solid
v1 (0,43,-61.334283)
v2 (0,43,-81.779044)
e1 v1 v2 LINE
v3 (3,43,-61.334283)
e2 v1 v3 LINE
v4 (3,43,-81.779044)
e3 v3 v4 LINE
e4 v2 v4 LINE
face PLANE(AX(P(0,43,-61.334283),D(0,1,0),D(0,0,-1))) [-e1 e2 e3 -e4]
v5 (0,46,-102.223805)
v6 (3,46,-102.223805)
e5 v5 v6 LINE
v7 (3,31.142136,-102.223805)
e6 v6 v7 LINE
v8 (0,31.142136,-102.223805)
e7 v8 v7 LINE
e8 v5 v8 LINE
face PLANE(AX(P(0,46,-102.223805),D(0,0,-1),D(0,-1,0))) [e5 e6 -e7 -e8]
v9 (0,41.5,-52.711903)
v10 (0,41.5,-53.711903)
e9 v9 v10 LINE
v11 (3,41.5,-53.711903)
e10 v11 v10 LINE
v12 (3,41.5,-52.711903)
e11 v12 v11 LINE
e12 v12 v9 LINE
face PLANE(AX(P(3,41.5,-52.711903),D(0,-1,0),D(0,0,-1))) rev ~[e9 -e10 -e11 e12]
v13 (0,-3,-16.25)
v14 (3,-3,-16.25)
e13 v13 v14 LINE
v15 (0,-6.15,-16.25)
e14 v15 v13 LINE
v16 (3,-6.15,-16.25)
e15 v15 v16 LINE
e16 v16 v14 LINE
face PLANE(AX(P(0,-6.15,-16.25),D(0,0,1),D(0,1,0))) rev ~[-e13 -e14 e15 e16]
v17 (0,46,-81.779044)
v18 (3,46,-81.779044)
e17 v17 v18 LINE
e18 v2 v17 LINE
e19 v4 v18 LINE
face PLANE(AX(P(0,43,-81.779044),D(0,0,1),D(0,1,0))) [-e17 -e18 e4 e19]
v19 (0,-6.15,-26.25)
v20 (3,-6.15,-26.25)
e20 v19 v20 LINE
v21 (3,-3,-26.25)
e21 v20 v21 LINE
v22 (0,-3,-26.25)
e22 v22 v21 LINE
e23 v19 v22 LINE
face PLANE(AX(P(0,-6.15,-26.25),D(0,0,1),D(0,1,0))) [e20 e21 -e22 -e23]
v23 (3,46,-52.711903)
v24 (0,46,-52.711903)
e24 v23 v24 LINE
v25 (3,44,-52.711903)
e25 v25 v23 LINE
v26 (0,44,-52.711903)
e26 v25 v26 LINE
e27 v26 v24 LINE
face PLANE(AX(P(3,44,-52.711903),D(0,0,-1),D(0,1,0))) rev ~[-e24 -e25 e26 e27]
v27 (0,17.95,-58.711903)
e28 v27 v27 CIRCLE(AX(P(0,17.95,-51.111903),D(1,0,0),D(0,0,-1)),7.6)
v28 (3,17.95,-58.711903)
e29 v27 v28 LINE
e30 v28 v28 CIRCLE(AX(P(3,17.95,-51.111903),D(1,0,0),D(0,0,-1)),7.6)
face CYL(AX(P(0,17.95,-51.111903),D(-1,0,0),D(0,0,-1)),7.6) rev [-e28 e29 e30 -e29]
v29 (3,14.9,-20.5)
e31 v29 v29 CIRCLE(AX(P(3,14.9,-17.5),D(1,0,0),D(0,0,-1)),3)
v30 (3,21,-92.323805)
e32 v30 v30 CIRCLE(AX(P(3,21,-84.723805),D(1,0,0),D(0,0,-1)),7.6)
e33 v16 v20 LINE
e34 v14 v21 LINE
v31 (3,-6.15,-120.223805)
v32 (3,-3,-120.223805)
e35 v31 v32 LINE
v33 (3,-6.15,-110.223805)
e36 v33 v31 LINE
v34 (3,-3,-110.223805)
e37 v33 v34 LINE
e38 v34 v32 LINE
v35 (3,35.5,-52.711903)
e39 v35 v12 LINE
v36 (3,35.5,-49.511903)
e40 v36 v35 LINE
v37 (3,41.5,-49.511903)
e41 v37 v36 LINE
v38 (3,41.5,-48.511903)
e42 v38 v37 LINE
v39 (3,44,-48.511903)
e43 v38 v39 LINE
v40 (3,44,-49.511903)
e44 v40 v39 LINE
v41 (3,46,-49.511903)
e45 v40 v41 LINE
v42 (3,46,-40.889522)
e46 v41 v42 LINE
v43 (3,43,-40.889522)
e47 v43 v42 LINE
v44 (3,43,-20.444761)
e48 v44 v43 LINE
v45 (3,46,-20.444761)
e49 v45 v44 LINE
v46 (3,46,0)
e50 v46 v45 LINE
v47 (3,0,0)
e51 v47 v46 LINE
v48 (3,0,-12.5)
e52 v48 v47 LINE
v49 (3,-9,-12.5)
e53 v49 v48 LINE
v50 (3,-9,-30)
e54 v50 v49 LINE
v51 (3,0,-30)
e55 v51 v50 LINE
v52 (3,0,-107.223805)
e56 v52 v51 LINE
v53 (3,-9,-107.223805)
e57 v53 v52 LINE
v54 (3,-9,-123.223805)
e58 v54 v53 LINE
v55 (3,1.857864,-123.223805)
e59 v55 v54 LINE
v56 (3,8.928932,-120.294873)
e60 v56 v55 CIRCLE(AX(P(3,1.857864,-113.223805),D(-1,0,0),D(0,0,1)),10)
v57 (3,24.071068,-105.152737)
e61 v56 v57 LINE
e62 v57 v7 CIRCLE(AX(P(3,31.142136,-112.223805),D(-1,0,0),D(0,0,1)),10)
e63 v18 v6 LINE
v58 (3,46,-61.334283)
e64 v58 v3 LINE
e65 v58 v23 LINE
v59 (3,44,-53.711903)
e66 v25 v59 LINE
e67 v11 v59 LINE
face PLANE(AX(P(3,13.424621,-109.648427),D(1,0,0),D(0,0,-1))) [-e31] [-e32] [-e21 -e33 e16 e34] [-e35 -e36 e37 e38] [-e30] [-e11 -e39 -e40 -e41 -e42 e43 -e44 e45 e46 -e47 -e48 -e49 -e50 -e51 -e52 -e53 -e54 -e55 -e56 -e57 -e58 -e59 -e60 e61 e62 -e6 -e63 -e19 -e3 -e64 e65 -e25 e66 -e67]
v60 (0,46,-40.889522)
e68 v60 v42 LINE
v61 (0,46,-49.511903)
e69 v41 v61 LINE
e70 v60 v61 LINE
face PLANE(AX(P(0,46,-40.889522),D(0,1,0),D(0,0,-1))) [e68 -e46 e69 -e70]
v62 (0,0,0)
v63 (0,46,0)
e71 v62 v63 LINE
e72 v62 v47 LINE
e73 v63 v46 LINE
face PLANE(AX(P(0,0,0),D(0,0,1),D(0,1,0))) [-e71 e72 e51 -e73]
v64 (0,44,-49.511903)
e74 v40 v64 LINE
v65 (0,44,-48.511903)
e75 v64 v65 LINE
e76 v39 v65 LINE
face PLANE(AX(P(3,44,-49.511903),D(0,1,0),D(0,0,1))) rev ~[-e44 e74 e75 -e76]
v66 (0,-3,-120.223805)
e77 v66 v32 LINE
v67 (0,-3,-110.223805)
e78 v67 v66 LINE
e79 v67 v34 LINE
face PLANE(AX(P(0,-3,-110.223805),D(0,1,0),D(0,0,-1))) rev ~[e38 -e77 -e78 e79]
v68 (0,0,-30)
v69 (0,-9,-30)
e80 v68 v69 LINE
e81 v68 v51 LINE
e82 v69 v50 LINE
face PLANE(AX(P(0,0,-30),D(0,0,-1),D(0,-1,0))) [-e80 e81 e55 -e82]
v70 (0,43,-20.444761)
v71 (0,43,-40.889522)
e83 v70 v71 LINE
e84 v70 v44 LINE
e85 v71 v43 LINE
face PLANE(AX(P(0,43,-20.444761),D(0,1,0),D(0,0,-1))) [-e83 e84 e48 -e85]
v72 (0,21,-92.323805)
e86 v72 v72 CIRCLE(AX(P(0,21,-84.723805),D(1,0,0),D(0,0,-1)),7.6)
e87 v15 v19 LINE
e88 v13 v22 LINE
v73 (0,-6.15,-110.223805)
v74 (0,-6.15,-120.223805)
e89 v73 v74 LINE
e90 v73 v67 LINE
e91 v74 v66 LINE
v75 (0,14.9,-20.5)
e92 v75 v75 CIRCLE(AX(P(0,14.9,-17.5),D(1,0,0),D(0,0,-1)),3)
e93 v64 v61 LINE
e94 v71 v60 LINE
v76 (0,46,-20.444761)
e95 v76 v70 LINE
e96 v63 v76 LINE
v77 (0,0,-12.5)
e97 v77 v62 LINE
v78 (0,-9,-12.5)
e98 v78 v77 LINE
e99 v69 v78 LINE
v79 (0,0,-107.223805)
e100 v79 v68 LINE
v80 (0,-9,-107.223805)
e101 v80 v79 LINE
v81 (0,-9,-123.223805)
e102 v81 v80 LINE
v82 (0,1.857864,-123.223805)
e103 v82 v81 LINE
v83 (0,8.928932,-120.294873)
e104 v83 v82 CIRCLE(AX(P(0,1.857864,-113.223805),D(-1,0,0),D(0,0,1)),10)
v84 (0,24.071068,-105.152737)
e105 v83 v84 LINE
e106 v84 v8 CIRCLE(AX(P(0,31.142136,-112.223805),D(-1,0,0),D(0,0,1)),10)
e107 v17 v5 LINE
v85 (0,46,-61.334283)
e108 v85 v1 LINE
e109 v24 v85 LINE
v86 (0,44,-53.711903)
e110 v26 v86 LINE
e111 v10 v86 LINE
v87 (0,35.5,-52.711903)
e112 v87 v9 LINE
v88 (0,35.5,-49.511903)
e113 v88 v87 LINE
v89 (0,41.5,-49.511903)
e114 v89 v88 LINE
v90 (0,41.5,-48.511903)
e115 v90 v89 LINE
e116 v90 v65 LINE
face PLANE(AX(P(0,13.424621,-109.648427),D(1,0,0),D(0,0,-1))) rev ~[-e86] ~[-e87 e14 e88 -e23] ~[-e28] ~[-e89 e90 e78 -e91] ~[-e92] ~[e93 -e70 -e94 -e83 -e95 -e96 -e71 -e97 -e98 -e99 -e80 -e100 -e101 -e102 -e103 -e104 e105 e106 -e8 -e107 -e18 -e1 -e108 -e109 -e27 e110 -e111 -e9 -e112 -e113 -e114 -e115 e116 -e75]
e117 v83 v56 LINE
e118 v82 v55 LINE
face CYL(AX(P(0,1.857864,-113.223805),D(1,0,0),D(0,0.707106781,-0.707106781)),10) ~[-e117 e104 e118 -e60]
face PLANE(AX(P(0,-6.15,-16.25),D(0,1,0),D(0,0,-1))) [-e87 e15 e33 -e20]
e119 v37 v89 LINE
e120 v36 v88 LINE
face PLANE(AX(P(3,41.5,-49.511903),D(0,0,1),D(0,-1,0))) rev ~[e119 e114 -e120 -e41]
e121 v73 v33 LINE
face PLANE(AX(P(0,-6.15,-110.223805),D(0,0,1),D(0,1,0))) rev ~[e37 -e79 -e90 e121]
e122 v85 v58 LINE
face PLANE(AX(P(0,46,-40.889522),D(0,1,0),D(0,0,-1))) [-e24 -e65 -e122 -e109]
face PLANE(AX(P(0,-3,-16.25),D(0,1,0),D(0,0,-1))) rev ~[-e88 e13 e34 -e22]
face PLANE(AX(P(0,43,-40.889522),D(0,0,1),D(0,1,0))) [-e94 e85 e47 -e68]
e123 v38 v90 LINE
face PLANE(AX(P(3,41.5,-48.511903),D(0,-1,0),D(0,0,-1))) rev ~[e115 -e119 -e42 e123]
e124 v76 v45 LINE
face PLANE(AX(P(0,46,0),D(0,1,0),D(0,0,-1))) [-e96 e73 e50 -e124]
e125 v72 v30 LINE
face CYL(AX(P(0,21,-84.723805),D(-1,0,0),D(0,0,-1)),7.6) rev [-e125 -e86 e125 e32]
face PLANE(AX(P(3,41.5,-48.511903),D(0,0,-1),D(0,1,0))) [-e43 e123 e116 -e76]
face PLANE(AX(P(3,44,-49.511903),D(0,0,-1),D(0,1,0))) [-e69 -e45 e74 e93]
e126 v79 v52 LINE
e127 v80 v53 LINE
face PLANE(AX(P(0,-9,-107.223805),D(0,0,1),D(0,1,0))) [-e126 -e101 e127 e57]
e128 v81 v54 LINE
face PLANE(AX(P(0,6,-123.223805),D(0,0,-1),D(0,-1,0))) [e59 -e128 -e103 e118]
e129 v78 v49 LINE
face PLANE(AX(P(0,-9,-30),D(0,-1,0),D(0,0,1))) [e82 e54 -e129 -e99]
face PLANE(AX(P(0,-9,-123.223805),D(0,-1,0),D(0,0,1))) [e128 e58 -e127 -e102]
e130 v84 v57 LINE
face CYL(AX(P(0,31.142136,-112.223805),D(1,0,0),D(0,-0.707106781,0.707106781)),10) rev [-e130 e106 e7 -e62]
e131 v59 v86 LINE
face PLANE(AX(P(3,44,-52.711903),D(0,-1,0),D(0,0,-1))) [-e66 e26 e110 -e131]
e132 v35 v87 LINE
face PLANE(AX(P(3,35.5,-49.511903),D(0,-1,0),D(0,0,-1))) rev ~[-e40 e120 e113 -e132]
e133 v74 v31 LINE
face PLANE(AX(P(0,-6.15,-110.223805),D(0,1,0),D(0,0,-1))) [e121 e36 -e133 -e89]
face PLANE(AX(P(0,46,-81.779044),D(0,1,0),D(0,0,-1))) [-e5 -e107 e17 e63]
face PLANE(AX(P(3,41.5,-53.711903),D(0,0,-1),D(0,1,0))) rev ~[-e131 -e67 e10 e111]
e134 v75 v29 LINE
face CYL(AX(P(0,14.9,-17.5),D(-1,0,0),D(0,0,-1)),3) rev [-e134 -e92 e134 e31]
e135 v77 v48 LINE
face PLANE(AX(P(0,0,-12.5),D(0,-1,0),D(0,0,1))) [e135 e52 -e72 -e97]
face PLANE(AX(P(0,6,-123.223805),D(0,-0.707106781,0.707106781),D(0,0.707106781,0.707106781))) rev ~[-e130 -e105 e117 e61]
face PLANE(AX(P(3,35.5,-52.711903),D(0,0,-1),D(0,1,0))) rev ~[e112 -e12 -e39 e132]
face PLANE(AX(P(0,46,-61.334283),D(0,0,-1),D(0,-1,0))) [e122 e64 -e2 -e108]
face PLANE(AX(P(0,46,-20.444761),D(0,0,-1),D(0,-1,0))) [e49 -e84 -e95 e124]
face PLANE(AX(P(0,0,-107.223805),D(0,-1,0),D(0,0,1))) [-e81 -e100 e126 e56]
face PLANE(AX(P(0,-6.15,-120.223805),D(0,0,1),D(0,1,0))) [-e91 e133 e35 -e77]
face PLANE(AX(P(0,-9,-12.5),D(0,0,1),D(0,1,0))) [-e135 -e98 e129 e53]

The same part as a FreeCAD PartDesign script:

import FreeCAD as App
import Part
import Sketcher

V = App.Vector
Q = App.Units.Quantity


def edges_at(feature, points):
    """Names of the edges that pass closest to the given points."""
    edges = feature.Shape.Edges
    near = lambda p: min(range(len(edges)), key=lambda i: edges[i].distToShape(Part.Vertex(*p))[0])
    return sorted({f"Edge{near(p) + 1}" for p in points})

doc = App.newDocument("Part")
body = doc.addObject("PartDesign::Body", "Body")

# Sketch on YZ plane
sketch1 = doc.addObject("Sketcher::SketchObject", "Sketch")
body.addObject(sketch1)
sketch1.AttachmentSupport = (doc.YZ_Plane, [""])
sketch1.MapMode = "FlatFace"
sketch1.addGeometry([
    Part.LineSegment(V(6, -123.2, 0), V(27, -102.2, 0)),  # 0
    Part.LineSegment(V(27, -102.2, 0), V(46, -102.2, 0)),  # 1
    Part.LineSegment(V(46, -102.2, 0), V(46, -81.8, 0)),  # 2
    Part.LineSegment(V(46, -81.8, 0), V(43, -81.8, 0)),  # 3
    Part.LineSegment(V(43, -81.8, 0), V(43, -61.3, 0)),  # 4
    Part.LineSegment(V(43, -61.3, 0), V(46, -61.3, 0)),  # 5
    Part.LineSegment(V(46, -61.3, 0), V(46, -40.9, 0)),  # 6
    Part.LineSegment(V(46, -40.9, 0), V(43, -40.9, 0)),  # 7
    Part.LineSegment(V(43, -40.9, 0), V(43, -20.4, 0)),  # 8
    Part.LineSegment(V(43, -20.4, 0), V(46, -20.4, 0)),  # 9
    Part.LineSegment(V(46, -20.4, 0), V(46, 0, 0)),  # 10
    Part.LineSegment(V(46, 0, 0), V(0, 0, 0)),  # 11
    Part.LineSegment(V(0, 0, 0), V(0, -12.5, 0)),  # 12
    Part.LineSegment(V(0, -12.5, 0), V(-9, -12.5, 0)),  # 13
    Part.LineSegment(V(-9, -12.5, 0), V(-9, -30, 0)),  # 14
    Part.LineSegment(V(-9, -30, 0), V(0, -30, 0)),  # 15
    Part.LineSegment(V(0, -30, 0), V(0, -107.2, 0)),  # 16
    Part.LineSegment(V(0, -107.2, 0), V(-9, -107.2, 0)),  # 17
    Part.LineSegment(V(-9, -107.2, 0), V(-9, -123.2, 0)),  # 18
    Part.LineSegment(V(-9, -123.2, 0), V(6, -123.2, 0)),  # 19
    Part.LineSegment(V(-6.2, -26.2, 0), V(-6.2, -16.2, 0)),  # 20
    Part.LineSegment(V(-6.2, -16.2, 0), V(-3, -16.2, 0)),  # 21
    Part.LineSegment(V(-3, -16.2, 0), V(-3, -26.2, 0)),  # 22
    Part.LineSegment(V(-3, -26.2, 0), V(-6.2, -26.2, 0)),  # 23
    Part.LineSegment(V(-6.2, -120.2, 0), V(-6.2, -110.2, 0)),  # 24
    Part.LineSegment(V(-6.2, -110.2, 0), V(-3, -110.2, 0)),  # 25
    Part.LineSegment(V(-3, -110.2, 0), V(-3, -120.2, 0)),  # 26
    Part.LineSegment(V(-3, -120.2, 0), V(-6.2, -120.2, 0)),  # 27
    Part.Circle(V(14.9, -17.5, 0), V(0, 0, 1), 3),  # 28
    Part.Circle(V(17.9, -51.1, 0), V(0, 0, 1), 7.6),  # 29
    Part.Circle(V(21, -84.7, 0), V(0, 0, 1), 7.6),  # 30
], False)
sketch1.addConstraint([
    Sketcher.Constraint("Coincident", 0, 2, 1, 1),
    Sketcher.Constraint("Coincident", 1, 2, 2, 1),
    Sketcher.Constraint("Coincident", 2, 2, 3, 1),
    Sketcher.Constraint("Coincident", 3, 2, 4, 1),
    Sketcher.Constraint("Coincident", 4, 2, 5, 1),
    Sketcher.Constraint("Coincident", 5, 2, 6, 1),
    Sketcher.Constraint("Coincident", 6, 2, 7, 1),
    Sketcher.Constraint("Coincident", 7, 2, 8, 1),
    Sketcher.Constraint("Coincident", 8, 2, 9, 1),
    Sketcher.Constraint("Coincident", 9, 2, 10, 1),
    Sketcher.Constraint("Coincident", 10, 2, 11, 1),
    Sketcher.Constraint("Coincident", 11, 2, 12, 1),
    Sketcher.Constraint("Coincident", 12, 2, 13, 1),
    Sketcher.Constraint("Coincident", 13, 2, 14, 1),
    Sketcher.Constraint("Coincident", 14, 2, 15, 1),
    Sketcher.Constraint("Coincident", 15, 2, 16, 1),
    Sketcher.Constraint("Coincident", 16, 2, 17, 1),
    Sketcher.Constraint("Coincident", 17, 2, 18, 1),
    Sketcher.Constraint("Coincident", 18, 2, 19, 1),
    Sketcher.Constraint("Coincident", 19, 2, 0, 1),
    Sketcher.Constraint("Coincident", 20, 2, 21, 1),
    Sketcher.Constraint("Coincident", 21, 2, 22, 1),
    Sketcher.Constraint("Coincident", 22, 2, 23, 1),
    Sketcher.Constraint("Coincident", 23, 2, 20, 1),
    Sketcher.Constraint("Coincident", 24, 2, 25, 1),
    Sketcher.Constraint("Coincident", 25, 2, 26, 1),
    Sketcher.Constraint("Coincident", 26, 2, 27, 1),
    Sketcher.Constraint("Coincident", 27, 2, 24, 1),
    Sketcher.Constraint("Horizontal", 1),
    Sketcher.Constraint("Vertical", 2),
    Sketcher.Constraint("Horizontal", 3),
    Sketcher.Constraint("Vertical", 4),
    Sketcher.Constraint("Horizontal", 5),
    Sketcher.Constraint("Vertical", 6),
    Sketcher.Constraint("Horizontal", 7),
    Sketcher.Constraint("Vertical", 8),
    Sketcher.Constraint("Horizontal", 9),
    Sketcher.Constraint("Vertical", 10),
    Sketcher.Constraint("Horizontal", 11),
    Sketcher.Constraint("Vertical", 12),
    Sketcher.Constraint("Horizontal", 13),
    Sketcher.Constraint("Vertical", 14),
    Sketcher.Constraint("Horizontal", 15),
    Sketcher.Constraint("Vertical", 16),
    Sketcher.Constraint("Horizontal", 17),
    Sketcher.Constraint("Vertical", 18),
    Sketcher.Constraint("Horizontal", 19),
    Sketcher.Constraint("Vertical", 20),
    Sketcher.Constraint("Horizontal", 21),
    Sketcher.Constraint("Vertical", 22),
    Sketcher.Constraint("Horizontal", 23),
    Sketcher.Constraint("Vertical", 24),
    Sketcher.Constraint("Horizontal", 25),
    Sketcher.Constraint("Vertical", 26),
    Sketcher.Constraint("Horizontal", 27),
    Sketcher.Constraint("Coincident", 11, 2, -1, 1),
    Sketcher.Constraint("Equal", 29, 30),
    Sketcher.Constraint("PointOnObject", 15, 2, -2),
    Sketcher.Constraint("Vertical", 2, 2, 5, 2),
    Sketcher.Constraint("Vertical", 4, 2, 7, 2),
    Sketcher.Constraint("Vertical", 6, 2, 9, 2),
    Sketcher.Constraint("Vertical", 14, 2, 17, 2),
    Sketcher.Constraint("Vertical", 23, 2, 24, 2),
    Sketcher.Constraint("Vertical", 22, 2, 25, 2),
    Sketcher.Constraint("Equal", 2, 4),
    Sketcher.Constraint("Equal", 4, 6),
    Sketcher.Constraint("Equal", 6, 8),
    Sketcher.Constraint("Equal", 8, 10),
    Sketcher.Constraint("Equal", 22, 24),
    Sketcher.Constraint("Diameter", 28, 6.0),
    Sketcher.Constraint("Diameter", 29, 15.2),
    Sketcher.Constraint("DistanceX", 1, 1, 1, 2, 19.0),
    Sketcher.Constraint("DistanceX", 3, 2, 3, 1, 3.0),
    Sketcher.Constraint("DistanceX", 11, 2, 11, 1, 46.0),
    Sketcher.Constraint("DistanceX", 13, 2, 13, 1, 9.0),
    Sketcher.Constraint("DistanceX", 19, 1, 19, 2, 15.0),
    Sketcher.Constraint("DistanceY", 18, 2, 18, 1, 16.0),
    Sketcher.Constraint("DistanceY", 20, 1, 20, 2, 10.0),
    Sketcher.Constraint("Angle", 0, Q("45 deg")),
    Sketcher.Constraint("DistanceY", 12, 2, 12, 1, 12.5),
    Sketcher.Constraint("DistanceY", 14, 2, 14, 1, 17.5),
    Sketcher.Constraint("DistanceX", -1, 1, 30, 3, 21.0),
    Sketcher.Constraint("DistanceX", 21, 2, -1, 1, 3.0),
    Sketcher.Constraint("DistanceY", 28, 3, 12, 2, 5.0),
    Sketcher.Constraint("DistanceY", 24, 2, 17, 2, 3.0),
    Sketcher.Constraint("DistanceX", 21, 1, 21, 2, 3.15),
    Sketcher.Constraint("DistanceX", -1, 1, 28, 3, 14.9),
    Sketcher.Constraint("DistanceY", 0, 2, 30, 3, 17.5),
    Sketcher.Constraint("DistanceX", -1, 1, 29, 3, 17.95),
    Sketcher.Constraint("DistanceY", 20, 2, -1, 1, 16.25),
    Sketcher.Constraint("DistanceY", 2, 1, 2, 2, 20.444761),
    Sketcher.Constraint("DistanceY", 2, 2, 29, 3, 30.667142),
])
pad1 = doc.addObject("PartDesign::Pad", "Pad")
body.addObject(pad1)
pad1.Profile = sketch1
pad1.Length = 3
doc.recompute()

fillet = doc.addObject("PartDesign::Fillet", "Fillet")
body.addObject(fillet)
fillet.Base = (pad1, edges_at(pad1, [(1.5, 6, -123.224), (1.5, 27, -102.224)]))
fillet.Radius = 10

# Sketch on YZ plane
sketch2 = doc.addObject("Sketcher::SketchObject", "Sketch001")
body.addObject(sketch2)
sketch2.AttachmentSupport = (doc.YZ_Plane, [""])
sketch2.MapMode = "FlatFace"
sketch2.AttachmentOffset = App.Placement(V(0, 0, 3), App.Rotation())
sketch2.addGeometry([
    Part.LineSegment(V(35.5, -49.5, 0), V(35.5, -52.7, 0)),  # 0
    Part.LineSegment(V(35.5, -52.7, 0), V(41.5, -52.7, 0)),  # 1
    Part.LineSegment(V(41.5, -52.7, 0), V(41.5, -53.7, 0)),  # 2
    Part.LineSegment(V(41.5, -53.7, 0), V(44, -53.7, 0)),  # 3
    Part.LineSegment(V(44, -53.7, 0), V(44, -52.7, 0)),  # 4
    Part.LineSegment(V(44, -52.7, 0), V(46, -52.7, 0)),  # 5
    Part.LineSegment(V(46, -52.7, 0), V(46, -49.5, 0)),  # 6
    Part.LineSegment(V(46, -49.5, 0), V(44, -49.5, 0)),  # 7
    Part.LineSegment(V(44, -49.5, 0), V(44, -48.5, 0)),  # 8
    Part.LineSegment(V(44, -48.5, 0), V(41.5, -48.5, 0)),  # 9
    Part.LineSegment(V(41.5, -48.5, 0), V(41.5, -49.5, 0)),  # 10
    Part.LineSegment(V(41.5, -49.5, 0), V(35.5, -49.5, 0)),  # 11
], False)
sketch2.addConstraint([
    Sketcher.Constraint("Coincident", 0, 2, 1, 1),
    Sketcher.Constraint("Coincident", 1, 2, 2, 1),
    Sketcher.Constraint("Coincident", 2, 2, 3, 1),
    Sketcher.Constraint("Coincident", 3, 2, 4, 1),
    Sketcher.Constraint("Coincident", 4, 2, 5, 1),
    Sketcher.Constraint("Coincident", 5, 2, 6, 1),
    Sketcher.Constraint("Coincident", 6, 2, 7, 1),
    Sketcher.Constraint("Coincident", 7, 2, 8, 1),
    Sketcher.Constraint("Coincident", 8, 2, 9, 1),
    Sketcher.Constraint("Coincident", 9, 2, 10, 1),
    Sketcher.Constraint("Coincident", 10, 2, 11, 1),
    Sketcher.Constraint("Coincident", 11, 2, 0, 1),
    Sketcher.Constraint("Vertical", 0),
    Sketcher.Constraint("Horizontal", 1),
    Sketcher.Constraint("Vertical", 2),
    Sketcher.Constraint("Horizontal", 3),
    Sketcher.Constraint("Vertical", 4),
    Sketcher.Constraint("Horizontal", 5),
    Sketcher.Constraint("Vertical", 6),
    Sketcher.Constraint("Horizontal", 7),
    Sketcher.Constraint("Vertical", 8),
    Sketcher.Constraint("Horizontal", 9),
    Sketcher.Constraint("Vertical", 10),
    Sketcher.Constraint("Horizontal", 11),
    Sketcher.Constraint("Horizontal", 1, 2, 4, 2),
    Sketcher.Constraint("Horizontal", 7, 2, 10, 2),
    Sketcher.Constraint("Vertical", 4, 2, 7, 2),
    Sketcher.Constraint("Vertical", 2, 2, 9, 2),
    Sketcher.Constraint("Equal", 4, 8),
    Sketcher.Constraint("DistanceX", 1, 1, 1, 2, 6.0),
    Sketcher.Constraint("DistanceX", 5, 1, 5, 2, 2.0),
    Sketcher.Constraint("DistanceY", 2, 2, 2, 1, 1.0),
    Sketcher.Constraint("DistanceX", 3, 1, 3, 2, 2.5),
    Sketcher.Constraint("DistanceY", 0, 2, 0, 1, 3.2),
    Sketcher.Constraint("DistanceX", -1, 1, 3, 2, 44.0),
    Sketcher.Constraint("DistanceY", 0, 2, -1, 1, 52.711903),
])
pocket1 = doc.addObject("PartDesign::Pocket", "Pocket")
body.addObject(pocket1)
pocket1.Profile = sketch2
pocket1.Type = "ThroughAll"
pocket1.Midplane = True

doc.recompute()
